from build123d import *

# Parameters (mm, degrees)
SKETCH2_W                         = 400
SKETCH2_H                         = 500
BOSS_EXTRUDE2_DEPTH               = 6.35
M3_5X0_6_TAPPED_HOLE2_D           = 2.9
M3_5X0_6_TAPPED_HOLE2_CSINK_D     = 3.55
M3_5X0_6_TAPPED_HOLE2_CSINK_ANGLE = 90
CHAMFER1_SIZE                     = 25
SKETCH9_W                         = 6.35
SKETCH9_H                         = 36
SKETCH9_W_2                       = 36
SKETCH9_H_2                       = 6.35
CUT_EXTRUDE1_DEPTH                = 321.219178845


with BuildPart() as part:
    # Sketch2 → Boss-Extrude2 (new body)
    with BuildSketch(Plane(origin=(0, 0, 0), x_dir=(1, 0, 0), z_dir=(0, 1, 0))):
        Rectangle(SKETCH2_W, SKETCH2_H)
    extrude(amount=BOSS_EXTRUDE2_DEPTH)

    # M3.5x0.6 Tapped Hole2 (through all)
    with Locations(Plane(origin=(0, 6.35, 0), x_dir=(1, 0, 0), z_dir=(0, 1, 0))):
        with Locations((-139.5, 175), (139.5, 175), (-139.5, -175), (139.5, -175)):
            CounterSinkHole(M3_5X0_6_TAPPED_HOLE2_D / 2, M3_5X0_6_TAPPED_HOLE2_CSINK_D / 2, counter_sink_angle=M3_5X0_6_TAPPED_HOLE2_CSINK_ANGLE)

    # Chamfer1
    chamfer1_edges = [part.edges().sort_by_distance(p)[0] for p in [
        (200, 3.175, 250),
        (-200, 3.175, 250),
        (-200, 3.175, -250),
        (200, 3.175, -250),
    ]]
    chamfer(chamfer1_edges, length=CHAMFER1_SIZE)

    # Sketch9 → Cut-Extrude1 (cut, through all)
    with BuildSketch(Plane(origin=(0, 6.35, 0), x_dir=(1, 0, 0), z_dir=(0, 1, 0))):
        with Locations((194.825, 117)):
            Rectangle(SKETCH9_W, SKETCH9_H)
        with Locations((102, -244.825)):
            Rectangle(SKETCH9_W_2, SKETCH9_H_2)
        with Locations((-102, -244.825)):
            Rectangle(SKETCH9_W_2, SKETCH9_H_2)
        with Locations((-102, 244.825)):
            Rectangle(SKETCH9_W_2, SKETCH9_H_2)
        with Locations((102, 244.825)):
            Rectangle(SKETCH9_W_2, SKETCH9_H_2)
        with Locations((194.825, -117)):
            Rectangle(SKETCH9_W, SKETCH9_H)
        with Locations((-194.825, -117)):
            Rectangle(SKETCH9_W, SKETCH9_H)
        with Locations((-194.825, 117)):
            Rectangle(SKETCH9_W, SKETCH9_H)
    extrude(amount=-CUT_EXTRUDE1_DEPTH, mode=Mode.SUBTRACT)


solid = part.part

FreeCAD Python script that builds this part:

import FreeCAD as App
import Part
import Sketcher
from FreeCAD import Vector


def edges_at(feature, points):
    """Names of the edges that pass closest to the given points."""
    edges = feature.Shape.Edges
    near = lambda p: min(range(len(edges)), key=lambda i: edges[i].distToShape(Part.Vertex(*p))[0])
    return sorted({f"Edge{near(p) + 1}" for p in points})

doc = App.newDocument("Part")
body = doc.addObject("PartDesign::Body", "Body")

# Sketch on XZ plane
sketch1 = body.newObject("Sketcher::SketchObject", "Sketch")
sketch1.AttachmentSupport = (doc.getObject("XZ_Plane"), [""])
sketch1.MapMode = "FlatFace"
sketch1.addGeometry([
    Part.LineSegment(Vector(-200, -250, 0), Vector(-200, 250, 0)),
    Part.LineSegment(Vector(-200, 250, 0), Vector(200, 250, 0)),
    Part.LineSegment(Vector(200, 250, 0), Vector(200, -250, 0)),
    Part.LineSegment(Vector(200, -250, 0), Vector(-200, -250, 0)),
], False)
sketch1.addConstraint([
    Sketcher.Constraint("Coincident", 0, 2, 1, 1),
    Sketcher.Constraint("Coincident", 1, 2, 2, 1),
    Sketcher.Constraint("Coincident", 2, 2, 3, 1),
    Sketcher.Constraint("Coincident", 3, 2, 0, 1),
    Sketcher.Constraint("Vertical", 0),
    Sketcher.Constraint("Horizontal", 1),
    Sketcher.Constraint("Vertical", 2),
    Sketcher.Constraint("Horizontal", 3),
    Sketcher.Constraint("Symmetric", 0, 2, 2, 2, -1, 1),
    Sketcher.Constraint("DistanceX", 1, 1, 1, 2, 400.0),
    Sketcher.Constraint("DistanceY", 0, 1, 0, 2, 500.0),
])
pad1 = body.newObject("PartDesign::Pad", "Pad")
pad1.Profile = sketch1
pad1.Length = 6.35
pad1.Reversed = True

# Sketch on XZ plane
sketch2 = body.newObject("Sketcher::SketchObject", "Sketch001")
sketch2.AttachmentSupport = (doc.getObject("XZ_Plane"), [""])
sketch2.MapMode = "FlatFace"
sketch2.AttachmentOffset = App.Placement(Vector(0, 0, -6.35), App.Rotation())
sketch2.addGeometry([
    Part.Circle(Vector(-139.5, -175, 0), Vector(0, 0, 1), 1.45),
    Part.Circle(Vector(139.5, -175, 0), Vector(0, 0, 1), 1.45),
    Part.Circle(Vector(-139.5, 175, 0), Vector(0, 0, 1), 1.45),
    Part.Circle(Vector(139.5, 175, 0), Vector(0, 0, 1), 1.45),
], False)
sketch2.addConstraint([
    Sketcher.Constraint("Equal", 0, 1),
    Sketcher.Constraint("Equal", 1, 2),
    Sketcher.Constraint("Equal", 2, 3),
    Sketcher.Constraint("Symmetric", 1, 3, 2, 3, -1, 1),
    Sketcher.Constraint("Symmetric", 0, 3, 3, 3, -1, 1),
    Sketcher.Constraint("Symmetric", 0, 3, 1, 3, -2),
    Sketcher.Constraint("Diameter", 0, 2.9),
    Sketcher.Constraint("DistanceY", 0, 3, -1, 1, 175.0),
    Sketcher.Constraint("DistanceX", 0, 3, 1, 3, 279.0),
])
doc.recompute()
hole = body.newObject("PartDesign::Hole", "Hole")
hole.Profile = sketch2
hole.ThreadType = "None"
hole.Diameter = 2.9
hole.DepthType = "ThroughAll"
hole.HoleCutType = "Countersink"
hole.HoleCutDiameter = 3.55
hole.HoleCutCountersinkAngle = 90
hole.Reversed = True
doc.recompute()

chamfer = body.newObject("PartDesign::Chamfer", "Chamfer")
chamfer.Base = (hole, edges_at(hole, [
    (200, 3.175, 250),
    (-200, 3.175, 250),
    (-200, 3.175, -250),
    (200, 3.175, -250),
]))
chamfer.Size = 25

# Sketch on XZ plane
sketch3 = body.newObject("Sketcher::SketchObject", "Sketch002")
sketch3.AttachmentSupport = (doc.getObject("XZ_Plane"), [""])
sketch3.MapMode = "FlatFace"
sketch3.AttachmentOffset = App.Placement(Vector(0, 0, -6.35), App.Rotation())
sketch3.addGeometry([
    Part.LineSegment(Vector(191.65, -135, 0), Vector(191.65, -99, 0)),  # 0
    Part.LineSegment(Vector(191.65, -99, 0), Vector(198, -99, 0)),  # 1
    Part.LineSegment(Vector(198, -99, 0), Vector(198, -135, 0)),  # 2
    Part.LineSegment(Vector(198, -135, 0), Vector(191.65, -135, 0)),  # 3
    Part.LineSegment(Vector(84, 241.65, 0), Vector(84, 248, 0)),  # 4
    Part.LineSegment(Vector(84, 248, 0), Vector(120, 248, 0)),  # 5
    Part.LineSegment(Vector(120, 248, 0), Vector(120, 241.65, 0)),  # 6
    Part.LineSegment(Vector(120, 241.65, 0), Vector(84, 241.65, 0)),  # 7
    Part.LineSegment(Vector(-120, 241.65, 0), Vector(-120, 248, 0)),  # 8
    Part.LineSegment(Vector(-120, 248, 0), Vector(-84, 248, 0)),  # 9
    Part.LineSegment(Vector(-84, 248, 0), Vector(-84, 241.65, 0)),  # 10
    Part.LineSegment(Vector(-84, 241.65, 0), Vector(-120, 241.65, 0)),  # 11
    Part.LineSegment(Vector(-120, -248, 0), Vector(-120, -241.65, 0)),  # 12
    Part.LineSegment(Vector(-120, -241.65, 0), Vector(-84, -241.65, 0)),  # 13
    Part.LineSegment(Vector(-84, -241.65, 0), Vector(-84, -248, 0)),  # 14
    Part.LineSegment(Vector(-84, -248, 0), Vector(-120, -248, 0)),  # 15
    Part.LineSegment(Vector(84, -248, 0), Vector(84, -241.65, 0)),  # 16
    Part.LineSegment(Vector(84, -241.65, 0), Vector(120, -241.65, 0)),  # 17
    Part.LineSegment(Vector(120, -241.65, 0), Vector(120, -248, 0)),  # 18
    Part.LineSegment(Vector(120, -248, 0), Vector(84, -248, 0)),  # 19
    Part.LineSegment(Vector(191.65, 99, 0), Vector(191.65, 135, 0)),  # 20
    Part.LineSegment(Vector(191.65, 135, 0), Vector(198, 135, 0)),  # 21
    Part.LineSegment(Vector(198, 135, 0), Vector(198, 99, 0)),  # 22
    Part.LineSegment(Vector(198, 99, 0), Vector(191.65, 99, 0)),  # 23
    Part.LineSegment(Vector(-198, 99, 0), Vector(-198, 135, 0)),  # 24
    Part.LineSegment(Vector(-198, 135, 0), Vector(-191.65, 135, 0)),  # 25
    Part.LineSegment(Vector(-191.65, 135, 0), Vector(-191.65, 99, 0)),  # 26
    Part.LineSegment(Vector(-191.65, 99, 0), Vector(-198, 99, 0)),  # 27
    Part.LineSegment(Vector(-198, -135, 0), Vector(-198, -99, 0)),  # 28
    Part.LineSegment(Vector(-198, -99, 0), Vector(-191.65, -99, 0)),  # 29
    Part.LineSegment(Vector(-191.65, -99, 0), Vector(-191.65, -135, 0)),  # 30
    Part.LineSegment(Vector(-191.65, -135, 0), Vector(-198, -135, 0)),  # 31
], False)
sketch3.addConstraint([
    Sketcher.Constraint("Coincident", 0, 2, 1, 1),
    Sketcher.Constraint("Coincident", 1, 2, 2, 1),
    Sketcher.Constraint("Coincident", 2, 2, 3, 1),
    Sketcher.Constraint("Coincident", 3, 2, 0, 1),
    Sketcher.Constraint("Coincident", 4, 2, 5, 1),
    Sketcher.Constraint("Coincident", 5, 2, 6, 1),
    Sketcher.Constraint("Coincident", 6, 2, 7, 1),
    Sketcher.Constraint("Coincident", 7, 2, 4, 1),
    Sketcher.Constraint("Coincident", 8, 2, 9, 1),
    Sketcher.Constraint("Coincident", 9, 2, 10, 1),
    Sketcher.Constraint("Coincident", 10, 2, 11, 1),
    Sketcher.Constraint("Coincident", 11, 2, 8, 1),
    Sketcher.Constraint("Coincident", 12, 2, 13, 1),
    Sketcher.Constraint("Coincident", 13, 2, 14, 1),
    Sketcher.Constraint("Coincident", 14, 2, 15, 1),
    Sketcher.Constraint("Coincident", 15, 2, 12, 1),
    Sketcher.Constraint("Coincident", 16, 2, 17, 1),
    Sketcher.Constraint("Coincident", 17, 2, 18, 1),
    Sketcher.Constraint("Coincident", 18, 2, 19, 1),
    Sketcher.Constraint("Coincident", 19, 2, 16, 1),
    Sketcher.Constraint("Coincident", 20, 2, 21, 1),
    Sketcher.Constraint("Coincident", 21, 2, 22, 1),
    Sketcher.Constraint("Coincident", 22, 2, 23, 1),
    Sketcher.Constraint("Coincident", 23, 2, 20, 1),
    Sketcher.Constraint("Coincident", 24, 2, 25, 1),
    Sketcher.Constraint("Coincident", 25, 2, 26, 1),
    Sketcher.Constraint("Coincident", 26, 2, 27, 1),
    Sketcher.Constraint("Coincident", 27, 2, 24, 1),
    Sketcher.Constraint("Coincident", 28, 2, 29, 1),
    Sketcher.Constraint("Coincident", 29, 2, 30, 1),
    Sketcher.Constraint("Coincident", 30, 2, 31, 1),
    Sketcher.Constraint("Coincident", 31, 2, 28, 1),
    Sketcher.Constraint("Vertical", 0),
    Sketcher.Constraint("Horizontal", 1),
    Sketcher.Constraint("Vertical", 2),
    Sketcher.Constraint("Horizontal", 3),
    Sketcher.Constraint("Vertical", 4),
    Sketcher.Constraint("Horizontal", 5),
    Sketcher.Constraint("Vertical", 6),
    Sketcher.Constraint("Horizontal", 7),
    Sketcher.Constraint("Vertical", 8),
    Sketcher.Constraint("Horizontal", 9),
    Sketcher.Constraint("Vertical", 10),
    Sketcher.Constraint("Horizontal", 11),
    Sketcher.Constraint("Vertical", 12),
    Sketcher.Constraint("Horizontal", 13),
    Sketcher.Constraint("Vertical", 14),
    Sketcher.Constraint("Horizontal", 15),
    Sketcher.Constraint("Vertical", 16),
    Sketcher.Constraint("Horizontal", 17),
    Sketcher.Constraint("Vertical", 18),
    Sketcher.Constraint("Horizontal", 19),
    Sketcher.Constraint("Vertical", 20),
    Sketcher.Constraint("Horizontal", 21),
    Sketcher.Constraint("Vertical", 22),
    Sketcher.Constraint("Horizontal", 23),
    Sketcher.Constraint("Vertical", 24),
    Sketcher.Constraint("Horizontal", 25),
    Sketcher.Constraint("Vertical", 26),
    Sketcher.Constraint("Horizontal", 27),
    Sketcher.Constraint("Vertical", 28),
    Sketcher.Constraint("Horizontal", 29),
    Sketcher.Constraint("Vertical", 30),
    Sketcher.Constraint("Horizontal", 31),
    Sketcher.Constraint("Symmetric", 6, 2, 12, 2, -1, 1),
    Sketcher.Constraint("Symmetric", 4, 2, 14, 2, -1, 1),
    Sketcher.Constraint("Symmetric", 10, 2, 16, 2, -1, 1),
    Sketcher.Constraint("Symmetric", 8, 2, 18, 2, -1, 1),
    Sketcher.Constraint("Symmetric", 2, 2, 24, 2, -1, 1),
    Sketcher.Constraint("Symmetric", 0, 2, 26, 2, -1, 1),
    Sketcher.Constraint("Symmetric", 22, 2, 28, 2, -1, 1),
    Sketcher.Constraint("Symmetric", 20, 2, 30, 2, -1, 1),
    Sketcher.Constraint("Symmetric", 5, 2, 8, 2, -2),
    Sketcher.Constraint("Symmetric", 7, 2, 10, 2, -2),
    Sketcher.Constraint("Symmetric", 21, 2, 24, 2, -2),
    Sketcher.Constraint("Symmetric", 23, 2, 26, 2, -2),
    Sketcher.Constraint("Equal", 19, 0),
    Sketcher.Constraint("Equal", 31, 4),
    Sketcher.Constraint("DistanceX", 5, 1, 5, 2, 36.0),
    Sketcher.Constraint("DistanceY", 0, 2, -1, 1, 99.0),
    Sketcher.Constraint("DistanceX", -1, 1, 1, 2, 198.0),
    Sketcher.Constraint("DistanceX", -1, 1, 4, 2, 84.0),
    Sketcher.Constraint("DistanceY", -1, 1, 4, 2, 248.0),
    Sketcher.Constraint("DistanceX", 1, 1, 1, 2, 6.35),
])
pocket1 = body.newObject("PartDesign::Pocket", "Pocket")
pocket1.Profile = sketch3
pocket1.Type = "ThroughAll"
pocket1.Reversed = True

doc.recompute()
